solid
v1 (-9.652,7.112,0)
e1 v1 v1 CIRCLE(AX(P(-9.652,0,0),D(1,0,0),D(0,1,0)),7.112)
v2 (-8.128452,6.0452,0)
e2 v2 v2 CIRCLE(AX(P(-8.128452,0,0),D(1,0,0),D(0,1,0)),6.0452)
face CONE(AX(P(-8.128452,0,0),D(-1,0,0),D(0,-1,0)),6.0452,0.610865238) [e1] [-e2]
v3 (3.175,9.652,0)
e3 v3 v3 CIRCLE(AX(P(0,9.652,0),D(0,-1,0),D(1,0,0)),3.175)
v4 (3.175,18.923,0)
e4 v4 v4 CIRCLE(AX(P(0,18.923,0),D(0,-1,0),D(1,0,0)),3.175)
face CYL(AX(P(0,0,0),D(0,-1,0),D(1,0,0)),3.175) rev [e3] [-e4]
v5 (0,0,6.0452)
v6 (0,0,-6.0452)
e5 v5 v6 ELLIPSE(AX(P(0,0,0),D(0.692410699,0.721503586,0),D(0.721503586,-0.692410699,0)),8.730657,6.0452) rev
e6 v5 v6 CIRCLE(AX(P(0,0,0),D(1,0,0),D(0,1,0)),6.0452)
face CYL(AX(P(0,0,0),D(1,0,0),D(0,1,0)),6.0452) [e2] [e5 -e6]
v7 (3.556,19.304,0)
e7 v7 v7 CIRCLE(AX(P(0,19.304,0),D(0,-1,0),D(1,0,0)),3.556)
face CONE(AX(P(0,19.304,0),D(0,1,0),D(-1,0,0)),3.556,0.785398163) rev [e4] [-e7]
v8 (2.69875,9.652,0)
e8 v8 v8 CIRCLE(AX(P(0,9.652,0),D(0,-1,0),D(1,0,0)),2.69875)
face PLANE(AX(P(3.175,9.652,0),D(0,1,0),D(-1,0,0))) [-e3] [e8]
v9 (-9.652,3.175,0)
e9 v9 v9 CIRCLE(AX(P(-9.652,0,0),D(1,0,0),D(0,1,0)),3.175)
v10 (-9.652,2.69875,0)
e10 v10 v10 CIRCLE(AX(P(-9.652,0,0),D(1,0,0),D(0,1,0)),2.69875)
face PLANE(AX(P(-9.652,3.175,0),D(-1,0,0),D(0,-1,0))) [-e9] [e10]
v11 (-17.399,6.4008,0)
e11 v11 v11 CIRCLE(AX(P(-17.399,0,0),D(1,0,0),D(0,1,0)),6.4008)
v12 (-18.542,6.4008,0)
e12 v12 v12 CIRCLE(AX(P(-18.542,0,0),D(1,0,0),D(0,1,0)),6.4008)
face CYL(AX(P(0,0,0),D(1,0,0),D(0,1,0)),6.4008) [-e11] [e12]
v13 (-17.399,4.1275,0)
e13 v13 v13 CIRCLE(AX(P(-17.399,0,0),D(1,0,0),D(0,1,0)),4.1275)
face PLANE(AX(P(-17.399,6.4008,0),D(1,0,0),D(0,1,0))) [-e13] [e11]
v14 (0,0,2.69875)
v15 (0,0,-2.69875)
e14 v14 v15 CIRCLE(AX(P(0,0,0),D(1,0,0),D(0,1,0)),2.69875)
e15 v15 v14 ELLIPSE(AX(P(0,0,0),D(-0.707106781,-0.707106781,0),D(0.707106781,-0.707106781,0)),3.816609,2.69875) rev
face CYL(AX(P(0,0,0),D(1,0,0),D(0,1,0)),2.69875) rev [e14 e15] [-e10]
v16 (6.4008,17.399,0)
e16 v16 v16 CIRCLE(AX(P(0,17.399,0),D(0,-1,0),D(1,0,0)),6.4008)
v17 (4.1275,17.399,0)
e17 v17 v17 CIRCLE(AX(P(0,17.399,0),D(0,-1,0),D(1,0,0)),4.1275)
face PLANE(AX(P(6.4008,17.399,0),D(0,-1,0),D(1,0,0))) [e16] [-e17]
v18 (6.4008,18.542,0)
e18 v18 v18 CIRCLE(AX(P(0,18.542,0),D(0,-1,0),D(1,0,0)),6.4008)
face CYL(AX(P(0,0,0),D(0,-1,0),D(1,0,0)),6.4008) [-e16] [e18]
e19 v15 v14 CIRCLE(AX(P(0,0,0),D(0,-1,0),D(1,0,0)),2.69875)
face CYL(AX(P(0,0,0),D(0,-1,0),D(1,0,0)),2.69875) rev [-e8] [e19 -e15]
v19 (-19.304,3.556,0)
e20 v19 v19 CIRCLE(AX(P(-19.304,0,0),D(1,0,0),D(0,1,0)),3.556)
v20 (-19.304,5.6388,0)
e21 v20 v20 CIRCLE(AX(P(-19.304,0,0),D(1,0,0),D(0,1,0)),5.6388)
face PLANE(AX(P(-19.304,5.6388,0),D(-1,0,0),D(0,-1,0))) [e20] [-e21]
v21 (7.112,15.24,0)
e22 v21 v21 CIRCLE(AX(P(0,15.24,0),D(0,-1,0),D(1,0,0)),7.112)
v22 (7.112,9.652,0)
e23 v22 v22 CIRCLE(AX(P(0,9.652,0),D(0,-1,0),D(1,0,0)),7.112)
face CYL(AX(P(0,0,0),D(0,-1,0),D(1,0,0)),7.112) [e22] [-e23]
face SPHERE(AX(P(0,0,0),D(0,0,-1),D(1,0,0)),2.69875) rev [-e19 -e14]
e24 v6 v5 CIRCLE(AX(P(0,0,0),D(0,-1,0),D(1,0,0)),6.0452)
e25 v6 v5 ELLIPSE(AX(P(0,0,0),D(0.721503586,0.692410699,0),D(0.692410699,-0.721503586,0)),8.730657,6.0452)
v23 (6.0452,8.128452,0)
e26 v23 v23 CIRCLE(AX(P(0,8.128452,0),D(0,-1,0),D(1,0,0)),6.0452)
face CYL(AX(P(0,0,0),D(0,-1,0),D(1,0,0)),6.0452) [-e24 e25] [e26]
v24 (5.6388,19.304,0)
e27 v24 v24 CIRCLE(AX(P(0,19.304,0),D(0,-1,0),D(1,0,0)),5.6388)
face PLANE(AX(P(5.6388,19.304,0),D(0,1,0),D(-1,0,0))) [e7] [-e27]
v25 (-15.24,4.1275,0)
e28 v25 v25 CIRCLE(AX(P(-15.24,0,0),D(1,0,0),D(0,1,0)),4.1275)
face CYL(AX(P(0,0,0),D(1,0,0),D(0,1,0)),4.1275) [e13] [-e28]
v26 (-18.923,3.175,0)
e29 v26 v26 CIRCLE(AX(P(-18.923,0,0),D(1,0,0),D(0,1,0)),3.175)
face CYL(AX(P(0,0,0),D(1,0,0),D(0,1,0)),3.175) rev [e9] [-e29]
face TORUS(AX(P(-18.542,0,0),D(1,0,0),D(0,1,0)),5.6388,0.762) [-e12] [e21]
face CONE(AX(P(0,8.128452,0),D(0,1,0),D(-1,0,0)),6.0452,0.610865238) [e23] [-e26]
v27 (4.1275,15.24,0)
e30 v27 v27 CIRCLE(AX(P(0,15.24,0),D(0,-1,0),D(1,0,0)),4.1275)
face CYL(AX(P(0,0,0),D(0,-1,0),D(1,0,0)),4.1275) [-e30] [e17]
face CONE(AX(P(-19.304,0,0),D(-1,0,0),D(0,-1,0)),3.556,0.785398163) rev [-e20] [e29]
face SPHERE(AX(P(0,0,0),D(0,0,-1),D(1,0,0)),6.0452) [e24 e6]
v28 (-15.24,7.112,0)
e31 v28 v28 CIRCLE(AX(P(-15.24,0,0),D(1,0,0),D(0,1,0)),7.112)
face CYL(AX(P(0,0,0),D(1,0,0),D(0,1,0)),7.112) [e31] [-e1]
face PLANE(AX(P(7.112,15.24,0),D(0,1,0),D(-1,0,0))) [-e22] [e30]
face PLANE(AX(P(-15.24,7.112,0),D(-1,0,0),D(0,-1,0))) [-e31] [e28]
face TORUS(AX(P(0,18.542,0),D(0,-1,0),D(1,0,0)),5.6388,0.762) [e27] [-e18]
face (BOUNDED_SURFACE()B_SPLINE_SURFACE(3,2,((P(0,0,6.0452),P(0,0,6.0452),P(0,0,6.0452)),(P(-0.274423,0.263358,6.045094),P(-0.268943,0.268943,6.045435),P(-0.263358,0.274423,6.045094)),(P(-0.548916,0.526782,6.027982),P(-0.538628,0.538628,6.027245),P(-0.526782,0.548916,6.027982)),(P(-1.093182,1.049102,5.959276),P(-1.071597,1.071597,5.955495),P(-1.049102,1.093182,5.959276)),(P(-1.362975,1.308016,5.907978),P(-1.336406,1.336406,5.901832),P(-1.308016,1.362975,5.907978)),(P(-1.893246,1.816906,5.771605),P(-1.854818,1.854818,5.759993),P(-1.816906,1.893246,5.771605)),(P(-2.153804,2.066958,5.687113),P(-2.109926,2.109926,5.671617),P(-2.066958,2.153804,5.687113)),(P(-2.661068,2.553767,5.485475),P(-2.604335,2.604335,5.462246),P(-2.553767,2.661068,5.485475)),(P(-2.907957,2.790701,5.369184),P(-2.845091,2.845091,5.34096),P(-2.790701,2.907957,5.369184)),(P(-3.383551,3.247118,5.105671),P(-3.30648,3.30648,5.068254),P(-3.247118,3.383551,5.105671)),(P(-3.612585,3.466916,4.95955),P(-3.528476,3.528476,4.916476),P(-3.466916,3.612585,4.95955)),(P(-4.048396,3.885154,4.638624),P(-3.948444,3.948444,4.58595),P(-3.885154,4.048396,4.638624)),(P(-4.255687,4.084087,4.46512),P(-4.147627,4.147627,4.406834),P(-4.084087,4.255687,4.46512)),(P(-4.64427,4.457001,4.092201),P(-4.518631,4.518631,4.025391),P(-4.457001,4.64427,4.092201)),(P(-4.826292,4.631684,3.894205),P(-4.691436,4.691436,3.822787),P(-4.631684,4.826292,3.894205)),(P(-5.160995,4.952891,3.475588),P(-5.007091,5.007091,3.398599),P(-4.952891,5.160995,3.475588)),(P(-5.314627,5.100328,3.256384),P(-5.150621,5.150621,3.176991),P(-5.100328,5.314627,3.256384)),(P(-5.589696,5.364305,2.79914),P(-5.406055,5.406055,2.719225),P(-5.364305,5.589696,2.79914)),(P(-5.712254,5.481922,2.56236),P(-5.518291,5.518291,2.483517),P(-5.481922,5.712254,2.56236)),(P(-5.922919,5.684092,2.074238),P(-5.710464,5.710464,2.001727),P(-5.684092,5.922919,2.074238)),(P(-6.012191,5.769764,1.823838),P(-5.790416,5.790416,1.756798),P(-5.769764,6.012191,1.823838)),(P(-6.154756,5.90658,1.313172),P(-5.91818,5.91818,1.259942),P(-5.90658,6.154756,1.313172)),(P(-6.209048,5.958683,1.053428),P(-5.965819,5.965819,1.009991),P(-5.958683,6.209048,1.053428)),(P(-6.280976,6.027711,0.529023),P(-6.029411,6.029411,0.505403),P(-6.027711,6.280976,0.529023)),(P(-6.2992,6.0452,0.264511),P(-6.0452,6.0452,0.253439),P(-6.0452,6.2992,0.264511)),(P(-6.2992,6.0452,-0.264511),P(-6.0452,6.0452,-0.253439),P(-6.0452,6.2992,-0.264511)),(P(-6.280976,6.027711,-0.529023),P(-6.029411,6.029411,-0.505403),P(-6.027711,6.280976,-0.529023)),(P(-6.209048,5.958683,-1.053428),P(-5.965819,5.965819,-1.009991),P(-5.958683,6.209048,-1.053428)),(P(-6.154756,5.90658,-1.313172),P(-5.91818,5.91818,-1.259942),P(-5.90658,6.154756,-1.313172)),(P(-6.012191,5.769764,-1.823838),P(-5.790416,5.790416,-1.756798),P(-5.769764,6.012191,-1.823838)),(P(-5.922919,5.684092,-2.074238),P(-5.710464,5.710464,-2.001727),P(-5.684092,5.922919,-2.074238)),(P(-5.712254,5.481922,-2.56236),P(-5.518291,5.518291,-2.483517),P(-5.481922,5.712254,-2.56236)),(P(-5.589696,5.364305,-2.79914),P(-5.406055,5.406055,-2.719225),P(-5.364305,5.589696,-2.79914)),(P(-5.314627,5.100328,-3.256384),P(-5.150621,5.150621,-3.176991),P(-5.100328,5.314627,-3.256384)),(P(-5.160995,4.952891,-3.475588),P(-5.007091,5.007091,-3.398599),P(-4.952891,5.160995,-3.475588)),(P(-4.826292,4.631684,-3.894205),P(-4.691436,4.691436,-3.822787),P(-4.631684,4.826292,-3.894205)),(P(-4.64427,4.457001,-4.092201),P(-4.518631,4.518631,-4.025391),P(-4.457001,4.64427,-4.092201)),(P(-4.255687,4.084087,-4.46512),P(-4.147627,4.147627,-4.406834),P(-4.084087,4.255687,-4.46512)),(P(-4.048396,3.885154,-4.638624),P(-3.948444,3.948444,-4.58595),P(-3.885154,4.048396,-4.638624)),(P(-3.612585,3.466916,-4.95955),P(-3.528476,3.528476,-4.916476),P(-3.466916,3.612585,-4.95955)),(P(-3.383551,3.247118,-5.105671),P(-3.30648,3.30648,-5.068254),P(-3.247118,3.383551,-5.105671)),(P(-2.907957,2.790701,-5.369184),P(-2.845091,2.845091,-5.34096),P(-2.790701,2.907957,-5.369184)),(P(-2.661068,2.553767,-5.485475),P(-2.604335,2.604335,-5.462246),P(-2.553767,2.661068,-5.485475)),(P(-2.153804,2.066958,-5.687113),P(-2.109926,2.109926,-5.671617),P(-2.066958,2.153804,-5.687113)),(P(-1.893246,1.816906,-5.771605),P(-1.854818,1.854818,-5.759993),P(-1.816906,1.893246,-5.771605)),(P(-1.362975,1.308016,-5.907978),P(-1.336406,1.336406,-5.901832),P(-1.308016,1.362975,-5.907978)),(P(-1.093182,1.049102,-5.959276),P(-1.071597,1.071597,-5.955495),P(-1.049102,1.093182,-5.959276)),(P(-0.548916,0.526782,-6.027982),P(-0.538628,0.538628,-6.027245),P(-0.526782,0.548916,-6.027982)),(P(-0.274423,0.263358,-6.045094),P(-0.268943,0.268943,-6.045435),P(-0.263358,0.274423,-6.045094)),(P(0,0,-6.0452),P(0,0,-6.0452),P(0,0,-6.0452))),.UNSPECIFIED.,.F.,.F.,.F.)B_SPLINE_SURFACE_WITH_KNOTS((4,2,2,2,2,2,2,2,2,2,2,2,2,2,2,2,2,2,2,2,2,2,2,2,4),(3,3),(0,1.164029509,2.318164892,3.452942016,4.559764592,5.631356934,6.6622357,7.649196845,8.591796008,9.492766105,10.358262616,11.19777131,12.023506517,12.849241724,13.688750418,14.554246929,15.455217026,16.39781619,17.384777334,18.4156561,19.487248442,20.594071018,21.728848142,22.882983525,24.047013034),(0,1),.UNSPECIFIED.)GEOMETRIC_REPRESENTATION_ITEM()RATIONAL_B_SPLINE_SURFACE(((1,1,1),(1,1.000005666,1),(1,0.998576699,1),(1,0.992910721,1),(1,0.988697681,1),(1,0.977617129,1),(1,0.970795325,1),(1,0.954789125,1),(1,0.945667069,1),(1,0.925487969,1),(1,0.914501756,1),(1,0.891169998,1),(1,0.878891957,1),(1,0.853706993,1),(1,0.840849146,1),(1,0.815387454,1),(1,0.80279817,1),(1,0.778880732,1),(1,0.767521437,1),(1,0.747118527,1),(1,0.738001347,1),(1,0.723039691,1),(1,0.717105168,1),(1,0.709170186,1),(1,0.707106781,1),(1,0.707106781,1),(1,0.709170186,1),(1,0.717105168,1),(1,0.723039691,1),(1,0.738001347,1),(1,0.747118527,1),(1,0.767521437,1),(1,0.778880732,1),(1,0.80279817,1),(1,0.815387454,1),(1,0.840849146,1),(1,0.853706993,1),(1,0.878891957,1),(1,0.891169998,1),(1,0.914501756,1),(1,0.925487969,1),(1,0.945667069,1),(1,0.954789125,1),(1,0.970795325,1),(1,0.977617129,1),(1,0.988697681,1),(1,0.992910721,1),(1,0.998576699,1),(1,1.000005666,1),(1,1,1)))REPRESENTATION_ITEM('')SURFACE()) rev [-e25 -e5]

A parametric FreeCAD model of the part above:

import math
import FreeCAD as App
import Part
import Sketcher
from FreeCAD import Vector
Q = App.Units.Quantity


def edges_at(feature, points):
    """Names of the edges that pass closest to the given points."""
    edges = feature.Shape.Edges
    near = lambda p: min(range(len(edges)), key=lambda i: edges[i].distToShape(Part.Vertex(*p))[0])
    return sorted({f"Edge{near(p) + 1}" for p in points})

doc = App.newDocument("Part")
body = doc.addObject("PartDesign::Body", "Body")

sketch1 = body.newObject("Sketcher::SketchObject", "Sketch")
sketch1.AttachmentSupport = (doc.getObject("XY_Plane"), [""])
sketch1.MapMode = "FlatFace"
sketch1.addGeometry([
    Part.LineSegment(Vector(-9.652, 7.112, 0), Vector(-15.24, 7.112, 0)),
    Part.LineSegment(Vector(-15.24, 7.112, 0), Vector(-15.24, 4.1275, 0)),
    Part.LineSegment(Vector(-15.24, 4.1275, 0), Vector(-17.399, 4.1275, 0)),
    Part.LineSegment(Vector(-17.399, 4.1275, 0), Vector(-17.399, 6.4008, 0)),
    Part.LineSegment(Vector(-17.399, 6.4008, 0), Vector(-18.542, 6.4008, 0)),
    Part.ArcOfCircle(Part.Circle(Vector(-18.542, 5.6388, 0), Vector(0, 0, 1), 0.762), math.radians(90), math.radians(180)),
    Part.LineSegment(Vector(-19.304, 5.6388, 0), Vector(-19.304, 3.556, 0)),
    Part.LineSegment(Vector(-19.304, 3.556, 0), Vector(-18.923, 3.175, 0)),
    Part.LineSegment(Vector(-18.923, 3.175, 0), Vector(-9.652, 3.175, 0)),
    Part.LineSegment(Vector(-9.652, 3.175, 0), Vector(-9.652, 2.69875, 0)),
    Part.LineSegment(Vector(-9.652, 2.69875, 0), Vector(0, 2.69875, 0)),
    Part.LineSegment(Vector(0, 2.69875, 0), Vector(0, 6.0452, 0)),
    Part.LineSegment(Vector(0, 6.0452, 0), Vector(-8.128452, 6.0452, 0)),
    Part.LineSegment(Vector(-8.128452, 6.0452, 0), Vector(-9.652, 7.112, 0)),
], False)
sketch1.addConstraint([
    Sketcher.Constraint("Coincident", 0, 2, 1, 1),
    Sketcher.Constraint("Coincident", 1, 2, 2, 1),
    Sketcher.Constraint("Coincident", 2, 2, 3, 1),
    Sketcher.Constraint("Coincident", 3, 2, 4, 1),
    Sketcher.Constraint("Tangent", 4, 2, 5, 1),
    Sketcher.Constraint("Tangent", 5, 2, 6, 1),
    Sketcher.Constraint("Coincident", 6, 2, 7, 1),
    Sketcher.Constraint("Coincident", 7, 2, 8, 1),
    Sketcher.Constraint("Coincident", 8, 2, 9, 1),
    Sketcher.Constraint("Coincident", 9, 2, 10, 1),
    Sketcher.Constraint("Coincident", 10, 2, 11, 1),
    Sketcher.Constraint("Coincident", 11, 2, 12, 1),
    Sketcher.Constraint("Coincident", 12, 2, 13, 1),
    Sketcher.Constraint("Coincident", 13, 2, 0, 1),
    Sketcher.Constraint("Horizontal", 0),
    Sketcher.Constraint("Vertical", 1),
    Sketcher.Constraint("Horizontal", 2),
    Sketcher.Constraint("Vertical", 3),
    Sketcher.Constraint("Horizontal", 4),
    Sketcher.Constraint("Vertical", 6),
    Sketcher.Constraint("Horizontal", 8),
    Sketcher.Constraint("Vertical", 9),
    Sketcher.Constraint("Horizontal", 10),
    Sketcher.Constraint("Vertical", 11),
    Sketcher.Constraint("Horizontal", 12),
    Sketcher.Constraint("PointOnObject", 10, 2, -2),
    Sketcher.Constraint("Vertical", 9, 2, 13, 2),
    Sketcher.Constraint("Radius", 5, Q("0.03 in")),
    Sketcher.Constraint("Angle", 7, Q("-45 deg")),
    Sketcher.Constraint("Angle", 13, Q("145 deg")),
    Sketcher.Constraint("DistanceX", 0, 2, 0, 1, Q("0.22 in")),
    Sketcher.Constraint("DistanceX", 10, 1, 10, 2, Q("0.38 in")),
    Sketcher.Constraint("DistanceX", 2, 2, 2, 1, Q("0.085 in")),
    Sketcher.Constraint("DistanceX", 4, 2, 4, 1, Q("0.045 in")),
    Sketcher.Constraint("DistanceX", 8, 1, 8, 2, Q("0.365 in")),
    Sketcher.Constraint("DistanceY", 6, 2, 6, 1, Q("0.082 in")),
    Sketcher.Constraint("DistanceY", -1, 1, 0, 2, Q("0.28 in")),
    Sketcher.Constraint("DistanceY", -1, 1, 6, 2, Q("0.14 in")),
    Sketcher.Constraint("DistanceY", 1, 2, 1, 1, Q("0.1175 in")),
    Sketcher.Constraint("DistanceY", -1, 1, 11, 2, Q("0.238 in")),
    Sketcher.Constraint("DistanceY", 9, 2, 9, 1, 0.47625),
])
revolution = body.newObject("PartDesign::Revolution", "Revolution")
revolution.Profile = sketch1
revolution.ReferenceAxis = (sketch1, ["H_Axis"])
revolution.Angle = 360
doc.recompute()

polarpattern = body.newObject("PartDesign::PolarPattern", "PolarPattern")
polarpattern.Originals = [revolution]
polarpattern.Axis = (doc.getObject("Z_Axis"), [""])
polarpattern.Angle = 90
polarpattern.Occurrences = 2
polarpattern.Reversed = True
body.Tip = polarpattern

sketch2 = body.newObject("Sketcher::SketchObject", "Sketch001")
sketch2.AttachmentSupport = (doc.getObject("XZ_Plane"), [""])
sketch2.MapMode = "FlatFace"
sketch2.addGeometry(Part.Circle(Vector(0, 0, 0), Vector(0, 0, 1), 2.69875), False)
sketch2.addConstraint([
    Sketcher.Constraint("Coincident", 0, 3, -1, 1),
    Sketcher.Constraint("Diameter", 0, Q("0.2125 in")),
])
pocket1 = body.newObject("PartDesign::Pocket", "Pocket")
pocket1.Profile = sketch2
pocket1.Type = "ThroughAll"

sketch3 = body.newObject("Sketcher::SketchObject", "Sketch002")
sketch3.AttachmentSupport = (doc.getObject("YZ_Plane"), [""])
sketch3.MapMode = "FlatFace"
sketch3.addGeometry(Part.Circle(Vector(0, 0, 0), Vector(0, 0, 1), 2.69875), False)
sketch3.addConstraint([
    Sketcher.Constraint("Coincident", 0, 3, -1, 1),
    Sketcher.Constraint("Diameter", 0, Q("0.2125 in")),
])
pocket2 = body.newObject("PartDesign::Pocket", "Pocket001")
pocket2.Profile = sketch3
pocket2.Type = "ThroughAll"

sketch4 = body.newObject("Sketcher::SketchObject", "Sketch003")
sketch4.AttachmentSupport = (doc.getObject("YZ_Plane"), [""])
sketch4.MapMode = "FlatFace"
sketch4.addGeometry([
    Part.LineSegment(Vector(0, 2.69875, 0), Vector(0, 6.0452, 0)),
    Part.ArcOfCircle(Part.Circle(Vector(0, 0, 0), Vector(0, 0, 1), 6.0452), math.radians(90), math.radians(270)),
    Part.LineSegment(Vector(0, -6.0452, 0), Vector(0, -2.69875, 0)),
    Part.ArcOfCircle(Part.Circle(Vector(0, 0, 0), Vector(0, 0, 1), 2.69875), math.radians(90), math.radians(270)),
], False)
sketch4.addConstraint([
    Sketcher.Constraint("Coincident", 0, 2, 1, 1),
    Sketcher.Constraint("Coincident", 1, 2, 2, 1),
    Sketcher.Constraint("Coincident", 2, 2, 3, 2),
    Sketcher.Constraint("Coincident", 3, 1, 0, 1),
    Sketcher.Constraint("Vertical", 0),
    Sketcher.Constraint("Vertical", 2),
    Sketcher.Constraint("Coincident", 1, 3, -1, 1),
    Sketcher.Constraint("Coincident", 3, 3, -1, 1),
    Sketcher.Constraint("PointOnObject", 0, 2, -2),
    Sketcher.Constraint("PointOnObject", 1, 2, -2),
    Sketcher.Constraint("Radius", 1, Q("0.238 in")),
    Sketcher.Constraint("Radius", 3, 2.69875),
])
revolution2 = body.newObject("PartDesign::Revolution", "Revolution001")
revolution2.Profile = sketch4
revolution2.ReferenceAxis = (sketch4, ["V_Axis"])
revolution2.Angle = 90
doc.recompute()

fillet = body.newObject("PartDesign::Fillet", "Fillet")
fillet.Base = (revolution2, edges_at(revolution2, [(-3.905, 3.905, -4.614)]))
fillet.Radius = Q("0.01 in")

doc.recompute()
